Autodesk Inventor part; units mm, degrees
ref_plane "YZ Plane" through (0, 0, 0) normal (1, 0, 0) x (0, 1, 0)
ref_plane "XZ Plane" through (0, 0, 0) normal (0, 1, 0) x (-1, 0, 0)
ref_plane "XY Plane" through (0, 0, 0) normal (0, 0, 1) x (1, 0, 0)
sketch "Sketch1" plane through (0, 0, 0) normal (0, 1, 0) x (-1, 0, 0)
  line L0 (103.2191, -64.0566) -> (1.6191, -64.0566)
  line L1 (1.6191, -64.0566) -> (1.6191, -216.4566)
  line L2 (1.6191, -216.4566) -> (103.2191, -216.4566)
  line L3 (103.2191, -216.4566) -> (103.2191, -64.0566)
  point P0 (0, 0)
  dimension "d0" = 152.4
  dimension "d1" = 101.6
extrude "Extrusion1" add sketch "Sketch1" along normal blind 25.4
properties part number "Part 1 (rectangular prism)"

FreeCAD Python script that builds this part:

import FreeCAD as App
import Part
import Sketcher
Q = App.Units.Quantity


def add_polygon(sketch, points):
    """Adds a closed chain of lines whose ends are joined by coincident constraints."""
    first, n = sketch.GeometryCount, len(points)
    for a, b in zip(points, points[1:] + points[:1]):
        sketch.addGeometry(Part.LineSegment(App.Vector(*a, 0), App.Vector(*b, 0)), False)
    for i in range(n):
        sketch.addConstraint(Sketcher.Constraint("Coincident", first + i, 2, first + (i + 1) % n, 1))

doc = App.newDocument("Part")
body = doc.addObject("PartDesign::Body", "Body")

sketch1 = doc.addObject("Sketcher::SketchObject", "Sketch")
body.addObject(sketch1)
sketch1.AttachmentSupport = (doc.XZ_Plane, [""])
sketch1.MapMode = "FlatFace"
add_polygon(sketch1, [(-103, -216), (-103, -64), (-2, -64), (-2, -216)])
sketch1.addConstraint(Sketcher.Constraint("Vertical", 0))
sketch1.addConstraint(Sketcher.Constraint("Horizontal", 1))
sketch1.addConstraint(Sketcher.Constraint("Vertical", 2))
sketch1.addConstraint(Sketcher.Constraint("Horizontal", 3))
sketch1.addConstraint(Sketcher.Constraint("DistanceX", 1, 1, 1, 2, Q("4 in")))
sketch1.addConstraint(Sketcher.Constraint("DistanceY", 0, 1, 0, 2, Q("6 in")))
sketch1.addConstraint(Sketcher.Constraint("DistanceX", 0, 2, -1, 1, 103.219))
sketch1.addConstraint(Sketcher.Constraint("DistanceY", 0, 2, -1, 1, 64.0566))
pad1 = doc.addObject("PartDesign::Pad", "Pad")
body.addObject(pad1)
pad1.Profile = sketch1
pad1.Length = Q("1 in")
pad1.Reversed = True

doc.recompute()
